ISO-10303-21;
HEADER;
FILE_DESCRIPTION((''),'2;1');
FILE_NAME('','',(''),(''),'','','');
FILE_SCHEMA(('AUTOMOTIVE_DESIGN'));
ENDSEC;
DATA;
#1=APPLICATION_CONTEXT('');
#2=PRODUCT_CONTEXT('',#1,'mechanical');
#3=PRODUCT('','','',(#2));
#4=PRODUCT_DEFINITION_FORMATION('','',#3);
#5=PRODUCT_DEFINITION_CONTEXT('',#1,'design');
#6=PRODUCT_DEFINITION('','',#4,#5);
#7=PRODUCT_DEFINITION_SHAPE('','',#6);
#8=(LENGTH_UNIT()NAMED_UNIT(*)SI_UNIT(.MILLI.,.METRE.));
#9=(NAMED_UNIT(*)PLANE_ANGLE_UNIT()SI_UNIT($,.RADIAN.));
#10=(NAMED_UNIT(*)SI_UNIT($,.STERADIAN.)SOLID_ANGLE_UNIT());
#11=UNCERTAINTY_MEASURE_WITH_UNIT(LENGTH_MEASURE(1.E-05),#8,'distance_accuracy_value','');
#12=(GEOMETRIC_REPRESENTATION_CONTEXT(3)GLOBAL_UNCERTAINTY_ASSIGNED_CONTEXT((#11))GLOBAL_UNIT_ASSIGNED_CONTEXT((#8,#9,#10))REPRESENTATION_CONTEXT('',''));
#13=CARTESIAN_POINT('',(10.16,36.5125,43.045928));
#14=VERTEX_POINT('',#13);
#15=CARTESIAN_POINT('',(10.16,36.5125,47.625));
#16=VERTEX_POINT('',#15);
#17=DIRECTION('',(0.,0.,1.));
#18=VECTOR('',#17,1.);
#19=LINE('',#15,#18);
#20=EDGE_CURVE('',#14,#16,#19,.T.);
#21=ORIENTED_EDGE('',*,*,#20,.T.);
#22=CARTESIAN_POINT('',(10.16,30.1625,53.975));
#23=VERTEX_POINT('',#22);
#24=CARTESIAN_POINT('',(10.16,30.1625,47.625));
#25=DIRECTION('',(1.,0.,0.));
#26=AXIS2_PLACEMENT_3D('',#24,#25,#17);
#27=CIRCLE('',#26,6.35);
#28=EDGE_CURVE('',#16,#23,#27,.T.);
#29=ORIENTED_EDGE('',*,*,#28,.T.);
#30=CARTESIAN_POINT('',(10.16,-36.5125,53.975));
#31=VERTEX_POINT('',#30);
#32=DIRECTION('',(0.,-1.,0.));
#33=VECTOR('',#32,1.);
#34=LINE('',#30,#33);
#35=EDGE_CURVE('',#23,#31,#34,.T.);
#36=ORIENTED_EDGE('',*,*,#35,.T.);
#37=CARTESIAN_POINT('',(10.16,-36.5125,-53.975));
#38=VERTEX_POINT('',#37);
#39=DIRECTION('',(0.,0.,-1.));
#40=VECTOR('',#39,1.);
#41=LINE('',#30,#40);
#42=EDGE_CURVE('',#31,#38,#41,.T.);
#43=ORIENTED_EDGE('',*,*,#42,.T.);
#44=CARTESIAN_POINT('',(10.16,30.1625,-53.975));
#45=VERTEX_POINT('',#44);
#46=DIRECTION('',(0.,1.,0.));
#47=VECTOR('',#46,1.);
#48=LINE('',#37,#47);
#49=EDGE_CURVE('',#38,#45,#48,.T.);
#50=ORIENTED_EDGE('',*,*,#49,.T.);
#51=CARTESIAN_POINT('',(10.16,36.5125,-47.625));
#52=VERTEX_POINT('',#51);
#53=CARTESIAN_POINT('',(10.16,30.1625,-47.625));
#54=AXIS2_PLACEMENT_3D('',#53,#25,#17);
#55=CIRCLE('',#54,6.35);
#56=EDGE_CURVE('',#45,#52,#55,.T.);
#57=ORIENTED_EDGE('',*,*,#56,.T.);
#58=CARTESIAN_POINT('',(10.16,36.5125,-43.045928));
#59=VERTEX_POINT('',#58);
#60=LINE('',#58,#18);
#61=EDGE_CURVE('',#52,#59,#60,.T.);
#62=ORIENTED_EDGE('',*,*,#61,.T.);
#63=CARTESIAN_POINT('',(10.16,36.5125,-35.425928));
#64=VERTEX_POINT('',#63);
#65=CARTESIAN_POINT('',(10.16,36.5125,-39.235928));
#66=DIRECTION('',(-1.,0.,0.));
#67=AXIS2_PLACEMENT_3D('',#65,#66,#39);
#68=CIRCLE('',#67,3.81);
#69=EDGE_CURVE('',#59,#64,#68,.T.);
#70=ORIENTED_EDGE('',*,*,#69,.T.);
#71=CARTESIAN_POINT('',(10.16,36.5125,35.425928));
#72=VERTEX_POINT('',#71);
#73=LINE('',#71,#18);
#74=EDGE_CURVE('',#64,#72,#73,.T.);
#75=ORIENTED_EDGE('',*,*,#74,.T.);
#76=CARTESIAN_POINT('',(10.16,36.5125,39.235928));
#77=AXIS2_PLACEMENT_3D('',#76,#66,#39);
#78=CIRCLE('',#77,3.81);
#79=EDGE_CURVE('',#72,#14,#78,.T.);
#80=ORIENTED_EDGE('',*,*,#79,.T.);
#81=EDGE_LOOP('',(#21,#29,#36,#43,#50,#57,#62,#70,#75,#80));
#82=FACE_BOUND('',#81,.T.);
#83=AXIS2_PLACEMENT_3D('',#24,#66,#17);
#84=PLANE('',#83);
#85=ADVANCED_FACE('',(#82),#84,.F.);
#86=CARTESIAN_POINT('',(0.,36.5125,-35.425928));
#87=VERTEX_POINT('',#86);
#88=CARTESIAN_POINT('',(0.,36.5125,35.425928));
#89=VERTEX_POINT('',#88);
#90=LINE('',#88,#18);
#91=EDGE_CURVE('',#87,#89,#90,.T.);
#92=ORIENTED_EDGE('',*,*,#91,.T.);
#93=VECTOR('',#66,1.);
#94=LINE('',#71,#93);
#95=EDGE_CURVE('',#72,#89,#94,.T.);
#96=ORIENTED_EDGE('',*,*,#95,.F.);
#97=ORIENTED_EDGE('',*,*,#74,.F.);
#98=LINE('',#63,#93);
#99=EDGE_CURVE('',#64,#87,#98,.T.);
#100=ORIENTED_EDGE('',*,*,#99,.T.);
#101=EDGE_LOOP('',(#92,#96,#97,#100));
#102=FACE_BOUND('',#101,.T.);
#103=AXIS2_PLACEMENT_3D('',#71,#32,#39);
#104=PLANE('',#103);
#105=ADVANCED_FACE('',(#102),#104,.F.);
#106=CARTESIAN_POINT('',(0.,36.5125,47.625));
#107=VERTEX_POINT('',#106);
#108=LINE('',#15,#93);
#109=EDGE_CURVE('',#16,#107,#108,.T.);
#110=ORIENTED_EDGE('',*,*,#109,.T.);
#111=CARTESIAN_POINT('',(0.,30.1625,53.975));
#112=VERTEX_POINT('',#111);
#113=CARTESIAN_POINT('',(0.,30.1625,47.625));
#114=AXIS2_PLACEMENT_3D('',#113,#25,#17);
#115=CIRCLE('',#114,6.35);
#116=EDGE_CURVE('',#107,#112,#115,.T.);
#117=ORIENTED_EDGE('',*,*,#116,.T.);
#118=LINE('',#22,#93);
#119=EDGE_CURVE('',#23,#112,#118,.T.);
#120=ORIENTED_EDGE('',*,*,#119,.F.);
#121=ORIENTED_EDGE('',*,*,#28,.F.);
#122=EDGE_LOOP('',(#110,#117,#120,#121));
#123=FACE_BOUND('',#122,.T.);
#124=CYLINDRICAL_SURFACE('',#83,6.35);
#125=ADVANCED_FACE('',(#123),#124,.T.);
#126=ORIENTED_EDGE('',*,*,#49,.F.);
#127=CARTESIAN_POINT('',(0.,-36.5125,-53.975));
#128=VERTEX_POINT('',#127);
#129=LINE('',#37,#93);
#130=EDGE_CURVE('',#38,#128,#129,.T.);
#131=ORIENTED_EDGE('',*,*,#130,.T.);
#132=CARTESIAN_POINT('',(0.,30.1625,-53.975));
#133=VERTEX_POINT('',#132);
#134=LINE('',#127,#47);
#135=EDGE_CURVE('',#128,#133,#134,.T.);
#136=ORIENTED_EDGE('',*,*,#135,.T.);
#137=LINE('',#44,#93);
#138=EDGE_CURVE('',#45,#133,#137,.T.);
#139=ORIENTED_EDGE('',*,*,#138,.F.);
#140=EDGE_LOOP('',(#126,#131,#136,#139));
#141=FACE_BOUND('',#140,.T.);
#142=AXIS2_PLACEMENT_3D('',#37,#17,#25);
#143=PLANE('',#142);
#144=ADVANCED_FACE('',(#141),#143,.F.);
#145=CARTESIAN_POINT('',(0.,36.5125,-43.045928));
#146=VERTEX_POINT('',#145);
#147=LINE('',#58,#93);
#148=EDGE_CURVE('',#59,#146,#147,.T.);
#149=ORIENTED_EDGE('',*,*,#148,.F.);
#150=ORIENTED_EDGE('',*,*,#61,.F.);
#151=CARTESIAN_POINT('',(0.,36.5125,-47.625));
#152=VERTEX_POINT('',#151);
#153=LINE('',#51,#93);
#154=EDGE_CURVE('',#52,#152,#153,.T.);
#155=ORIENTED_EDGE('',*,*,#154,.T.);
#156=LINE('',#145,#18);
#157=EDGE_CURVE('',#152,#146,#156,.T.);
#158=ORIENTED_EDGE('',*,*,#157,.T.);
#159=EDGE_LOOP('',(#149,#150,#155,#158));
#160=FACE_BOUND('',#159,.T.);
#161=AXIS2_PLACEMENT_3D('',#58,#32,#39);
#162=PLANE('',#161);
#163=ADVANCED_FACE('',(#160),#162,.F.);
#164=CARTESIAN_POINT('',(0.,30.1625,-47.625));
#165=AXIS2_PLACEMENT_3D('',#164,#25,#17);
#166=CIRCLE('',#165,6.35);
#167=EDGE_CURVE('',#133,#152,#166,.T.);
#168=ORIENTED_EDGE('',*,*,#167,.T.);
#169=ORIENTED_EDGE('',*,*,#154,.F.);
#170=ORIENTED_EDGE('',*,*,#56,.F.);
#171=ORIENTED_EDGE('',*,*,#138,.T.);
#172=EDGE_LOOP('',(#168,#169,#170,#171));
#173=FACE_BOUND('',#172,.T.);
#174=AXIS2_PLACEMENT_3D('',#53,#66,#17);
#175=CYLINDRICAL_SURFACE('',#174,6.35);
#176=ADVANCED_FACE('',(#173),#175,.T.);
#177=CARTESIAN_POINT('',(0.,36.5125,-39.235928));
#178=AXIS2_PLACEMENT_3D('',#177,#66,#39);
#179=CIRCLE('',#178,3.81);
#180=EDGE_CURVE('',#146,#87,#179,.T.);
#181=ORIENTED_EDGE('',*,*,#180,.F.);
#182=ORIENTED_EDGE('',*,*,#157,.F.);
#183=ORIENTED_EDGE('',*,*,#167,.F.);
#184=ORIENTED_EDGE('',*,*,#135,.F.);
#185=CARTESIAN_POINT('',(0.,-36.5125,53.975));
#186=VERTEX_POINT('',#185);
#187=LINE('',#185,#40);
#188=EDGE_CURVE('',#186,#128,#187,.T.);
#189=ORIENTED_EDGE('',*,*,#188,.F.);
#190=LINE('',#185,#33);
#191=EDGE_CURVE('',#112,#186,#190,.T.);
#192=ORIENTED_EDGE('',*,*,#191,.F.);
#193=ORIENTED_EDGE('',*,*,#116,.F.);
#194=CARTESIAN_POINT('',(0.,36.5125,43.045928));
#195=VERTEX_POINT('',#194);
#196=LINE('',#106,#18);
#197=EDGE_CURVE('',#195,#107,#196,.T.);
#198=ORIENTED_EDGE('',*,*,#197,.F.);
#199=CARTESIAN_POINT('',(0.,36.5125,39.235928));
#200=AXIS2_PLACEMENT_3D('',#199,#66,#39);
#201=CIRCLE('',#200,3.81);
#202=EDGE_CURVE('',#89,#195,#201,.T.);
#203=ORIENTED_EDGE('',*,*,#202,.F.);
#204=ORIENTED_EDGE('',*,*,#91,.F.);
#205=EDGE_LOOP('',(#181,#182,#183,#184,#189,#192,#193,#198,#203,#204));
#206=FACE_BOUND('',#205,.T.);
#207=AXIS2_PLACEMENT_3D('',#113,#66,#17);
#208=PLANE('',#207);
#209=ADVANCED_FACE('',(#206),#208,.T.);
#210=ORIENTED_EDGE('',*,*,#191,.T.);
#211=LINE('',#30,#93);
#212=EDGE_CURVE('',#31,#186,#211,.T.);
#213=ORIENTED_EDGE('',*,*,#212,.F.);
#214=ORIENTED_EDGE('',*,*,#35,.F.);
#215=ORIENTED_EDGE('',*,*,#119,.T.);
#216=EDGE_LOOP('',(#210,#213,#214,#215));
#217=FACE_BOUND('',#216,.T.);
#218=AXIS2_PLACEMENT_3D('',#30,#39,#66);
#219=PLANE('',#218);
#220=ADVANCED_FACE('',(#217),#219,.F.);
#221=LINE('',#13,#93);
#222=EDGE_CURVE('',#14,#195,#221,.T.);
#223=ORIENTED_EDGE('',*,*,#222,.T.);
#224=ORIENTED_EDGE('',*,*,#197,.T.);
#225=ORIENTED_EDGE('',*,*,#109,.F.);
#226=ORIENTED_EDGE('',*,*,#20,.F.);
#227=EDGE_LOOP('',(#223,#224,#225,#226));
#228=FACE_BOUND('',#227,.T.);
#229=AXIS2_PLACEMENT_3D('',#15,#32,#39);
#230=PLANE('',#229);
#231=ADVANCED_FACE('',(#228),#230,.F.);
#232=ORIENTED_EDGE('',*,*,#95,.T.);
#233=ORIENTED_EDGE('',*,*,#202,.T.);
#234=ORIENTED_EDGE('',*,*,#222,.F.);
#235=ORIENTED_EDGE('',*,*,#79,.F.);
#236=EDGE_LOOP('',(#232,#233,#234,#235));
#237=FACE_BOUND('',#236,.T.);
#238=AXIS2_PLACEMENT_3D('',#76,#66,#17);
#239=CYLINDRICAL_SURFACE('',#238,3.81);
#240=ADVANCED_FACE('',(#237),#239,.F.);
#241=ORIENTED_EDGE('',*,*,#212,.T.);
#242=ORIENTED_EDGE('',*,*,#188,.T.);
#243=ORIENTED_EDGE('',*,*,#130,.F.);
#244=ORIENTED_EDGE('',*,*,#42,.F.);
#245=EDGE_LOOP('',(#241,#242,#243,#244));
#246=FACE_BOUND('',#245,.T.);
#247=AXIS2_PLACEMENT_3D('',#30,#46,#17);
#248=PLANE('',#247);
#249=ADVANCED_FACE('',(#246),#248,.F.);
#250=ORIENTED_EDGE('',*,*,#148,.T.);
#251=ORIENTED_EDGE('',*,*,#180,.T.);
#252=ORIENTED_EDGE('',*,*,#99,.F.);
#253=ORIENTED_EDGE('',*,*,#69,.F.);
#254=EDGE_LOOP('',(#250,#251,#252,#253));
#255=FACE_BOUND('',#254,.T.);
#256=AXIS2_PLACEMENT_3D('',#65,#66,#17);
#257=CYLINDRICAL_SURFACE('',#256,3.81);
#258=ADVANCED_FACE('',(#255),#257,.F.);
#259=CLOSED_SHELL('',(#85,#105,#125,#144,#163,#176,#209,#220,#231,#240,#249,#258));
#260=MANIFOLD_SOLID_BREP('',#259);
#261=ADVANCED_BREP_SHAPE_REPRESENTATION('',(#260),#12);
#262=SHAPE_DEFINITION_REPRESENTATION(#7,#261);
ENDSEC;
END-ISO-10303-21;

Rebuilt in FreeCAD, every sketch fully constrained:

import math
import FreeCAD as App
import Part
import Sketcher
Q = App.Units.Quantity

doc = App.newDocument("Part")
body = doc.addObject("PartDesign::Body", "Body")

sketch1 = body.newObject("Sketcher::SketchObject", "Sketch")
sketch1.AttachmentSupport = (doc.getObject("YZ_Plane"), [""])
sketch1.MapMode = "FlatFace"
sketch1.addGeometry([
    Part.LineSegment(App.Vector(-36.5, 54, 0), App.Vector(-36.5, -54, 0)),
    Part.LineSegment(App.Vector(-36.5, -54, 0), App.Vector(30.2, -54, 0)),
    Part.ArcOfCircle(Part.Circle(App.Vector(30.2, -47.6, 0), App.Vector(0, 0, 1), 6.3), math.radians(-90), math.radians(0)),
    Part.LineSegment(App.Vector(36.5, -47.6, 0), App.Vector(36.5, -43, 0)),
    Part.ArcOfCircle(Part.Circle(App.Vector(36.5, -39.2, 0), App.Vector(0, 0, 1), 3.8), math.radians(90), math.radians(270)),
    Part.LineSegment(App.Vector(36.5, -35.4, 0), App.Vector(36.5, 35.4, 0)),
    Part.ArcOfCircle(Part.Circle(App.Vector(36.5, 39.2, 0), App.Vector(0, 0, 1), 3.8), math.radians(90), math.radians(270)),
    Part.LineSegment(App.Vector(36.5, 43, 0), App.Vector(36.5, 47.6, 0)),
    Part.ArcOfCircle(Part.Circle(App.Vector(30.2, 47.6, 0), App.Vector(0, 0, 1), 6.3), math.radians(0), math.radians(90)),
    Part.LineSegment(App.Vector(30.2, 54, 0), App.Vector(-36.5, 54, 0)),
], False)
sketch1.addConstraint([
    Sketcher.Constraint("Coincident", 0, 2, 1, 1),
    Sketcher.Constraint("Tangent", 1, 2, 2, 1),
    Sketcher.Constraint("Tangent", 2, 2, 3, 1),
    Sketcher.Constraint("Coincident", 3, 2, 4, 2),
    Sketcher.Constraint("Coincident", 4, 1, 5, 1),
    Sketcher.Constraint("Coincident", 5, 2, 6, 2),
    Sketcher.Constraint("Coincident", 6, 1, 7, 1),
    Sketcher.Constraint("Tangent", 7, 2, 8, 1),
    Sketcher.Constraint("Tangent", 8, 2, 9, 1),
    Sketcher.Constraint("Coincident", 9, 2, 0, 1),
    Sketcher.Constraint("Vertical", 0),
    Sketcher.Constraint("Horizontal", 1),
    Sketcher.Constraint("Vertical", 3),
    Sketcher.Constraint("Vertical", 5),
    Sketcher.Constraint("Vertical", 7),
    Sketcher.Constraint("Horizontal", 9),
    Sketcher.Constraint("Equal", 4, 6),
    Sketcher.Constraint("Equal", 2, 8),
    Sketcher.Constraint("Symmetric", 4, 3, 6, 3, -1),
    Sketcher.Constraint("Symmetric", 2, 3, 8, 3, -1),
    Sketcher.Constraint("Vertical", 6, 3, 2, 2),
    Sketcher.Constraint("Vertical", 3, 2, 4, 1),
    Sketcher.Constraint("Radius", 2, Q("0.25 in")),
    Sketcher.Constraint("Radius", 4, Q("0.15 in")),
    Sketcher.Constraint("DistanceY", 0, 2, 8, 3, Q("4 in")),
    Sketcher.Constraint("DistanceX", 1, 1, 1, 2, Q("2.625 in")),
    Sketcher.Constraint("DistanceX", -1, 1, 2, 3, Q("1.1875 in")),
    Sketcher.Constraint("DistanceY", 3, 1, 3, 2, 4.579072),
])
pad1 = body.newObject("PartDesign::Pad", "Pad")
pad1.Profile = sketch1
pad1.Length = Q("0.4 in")

doc.recompute()
